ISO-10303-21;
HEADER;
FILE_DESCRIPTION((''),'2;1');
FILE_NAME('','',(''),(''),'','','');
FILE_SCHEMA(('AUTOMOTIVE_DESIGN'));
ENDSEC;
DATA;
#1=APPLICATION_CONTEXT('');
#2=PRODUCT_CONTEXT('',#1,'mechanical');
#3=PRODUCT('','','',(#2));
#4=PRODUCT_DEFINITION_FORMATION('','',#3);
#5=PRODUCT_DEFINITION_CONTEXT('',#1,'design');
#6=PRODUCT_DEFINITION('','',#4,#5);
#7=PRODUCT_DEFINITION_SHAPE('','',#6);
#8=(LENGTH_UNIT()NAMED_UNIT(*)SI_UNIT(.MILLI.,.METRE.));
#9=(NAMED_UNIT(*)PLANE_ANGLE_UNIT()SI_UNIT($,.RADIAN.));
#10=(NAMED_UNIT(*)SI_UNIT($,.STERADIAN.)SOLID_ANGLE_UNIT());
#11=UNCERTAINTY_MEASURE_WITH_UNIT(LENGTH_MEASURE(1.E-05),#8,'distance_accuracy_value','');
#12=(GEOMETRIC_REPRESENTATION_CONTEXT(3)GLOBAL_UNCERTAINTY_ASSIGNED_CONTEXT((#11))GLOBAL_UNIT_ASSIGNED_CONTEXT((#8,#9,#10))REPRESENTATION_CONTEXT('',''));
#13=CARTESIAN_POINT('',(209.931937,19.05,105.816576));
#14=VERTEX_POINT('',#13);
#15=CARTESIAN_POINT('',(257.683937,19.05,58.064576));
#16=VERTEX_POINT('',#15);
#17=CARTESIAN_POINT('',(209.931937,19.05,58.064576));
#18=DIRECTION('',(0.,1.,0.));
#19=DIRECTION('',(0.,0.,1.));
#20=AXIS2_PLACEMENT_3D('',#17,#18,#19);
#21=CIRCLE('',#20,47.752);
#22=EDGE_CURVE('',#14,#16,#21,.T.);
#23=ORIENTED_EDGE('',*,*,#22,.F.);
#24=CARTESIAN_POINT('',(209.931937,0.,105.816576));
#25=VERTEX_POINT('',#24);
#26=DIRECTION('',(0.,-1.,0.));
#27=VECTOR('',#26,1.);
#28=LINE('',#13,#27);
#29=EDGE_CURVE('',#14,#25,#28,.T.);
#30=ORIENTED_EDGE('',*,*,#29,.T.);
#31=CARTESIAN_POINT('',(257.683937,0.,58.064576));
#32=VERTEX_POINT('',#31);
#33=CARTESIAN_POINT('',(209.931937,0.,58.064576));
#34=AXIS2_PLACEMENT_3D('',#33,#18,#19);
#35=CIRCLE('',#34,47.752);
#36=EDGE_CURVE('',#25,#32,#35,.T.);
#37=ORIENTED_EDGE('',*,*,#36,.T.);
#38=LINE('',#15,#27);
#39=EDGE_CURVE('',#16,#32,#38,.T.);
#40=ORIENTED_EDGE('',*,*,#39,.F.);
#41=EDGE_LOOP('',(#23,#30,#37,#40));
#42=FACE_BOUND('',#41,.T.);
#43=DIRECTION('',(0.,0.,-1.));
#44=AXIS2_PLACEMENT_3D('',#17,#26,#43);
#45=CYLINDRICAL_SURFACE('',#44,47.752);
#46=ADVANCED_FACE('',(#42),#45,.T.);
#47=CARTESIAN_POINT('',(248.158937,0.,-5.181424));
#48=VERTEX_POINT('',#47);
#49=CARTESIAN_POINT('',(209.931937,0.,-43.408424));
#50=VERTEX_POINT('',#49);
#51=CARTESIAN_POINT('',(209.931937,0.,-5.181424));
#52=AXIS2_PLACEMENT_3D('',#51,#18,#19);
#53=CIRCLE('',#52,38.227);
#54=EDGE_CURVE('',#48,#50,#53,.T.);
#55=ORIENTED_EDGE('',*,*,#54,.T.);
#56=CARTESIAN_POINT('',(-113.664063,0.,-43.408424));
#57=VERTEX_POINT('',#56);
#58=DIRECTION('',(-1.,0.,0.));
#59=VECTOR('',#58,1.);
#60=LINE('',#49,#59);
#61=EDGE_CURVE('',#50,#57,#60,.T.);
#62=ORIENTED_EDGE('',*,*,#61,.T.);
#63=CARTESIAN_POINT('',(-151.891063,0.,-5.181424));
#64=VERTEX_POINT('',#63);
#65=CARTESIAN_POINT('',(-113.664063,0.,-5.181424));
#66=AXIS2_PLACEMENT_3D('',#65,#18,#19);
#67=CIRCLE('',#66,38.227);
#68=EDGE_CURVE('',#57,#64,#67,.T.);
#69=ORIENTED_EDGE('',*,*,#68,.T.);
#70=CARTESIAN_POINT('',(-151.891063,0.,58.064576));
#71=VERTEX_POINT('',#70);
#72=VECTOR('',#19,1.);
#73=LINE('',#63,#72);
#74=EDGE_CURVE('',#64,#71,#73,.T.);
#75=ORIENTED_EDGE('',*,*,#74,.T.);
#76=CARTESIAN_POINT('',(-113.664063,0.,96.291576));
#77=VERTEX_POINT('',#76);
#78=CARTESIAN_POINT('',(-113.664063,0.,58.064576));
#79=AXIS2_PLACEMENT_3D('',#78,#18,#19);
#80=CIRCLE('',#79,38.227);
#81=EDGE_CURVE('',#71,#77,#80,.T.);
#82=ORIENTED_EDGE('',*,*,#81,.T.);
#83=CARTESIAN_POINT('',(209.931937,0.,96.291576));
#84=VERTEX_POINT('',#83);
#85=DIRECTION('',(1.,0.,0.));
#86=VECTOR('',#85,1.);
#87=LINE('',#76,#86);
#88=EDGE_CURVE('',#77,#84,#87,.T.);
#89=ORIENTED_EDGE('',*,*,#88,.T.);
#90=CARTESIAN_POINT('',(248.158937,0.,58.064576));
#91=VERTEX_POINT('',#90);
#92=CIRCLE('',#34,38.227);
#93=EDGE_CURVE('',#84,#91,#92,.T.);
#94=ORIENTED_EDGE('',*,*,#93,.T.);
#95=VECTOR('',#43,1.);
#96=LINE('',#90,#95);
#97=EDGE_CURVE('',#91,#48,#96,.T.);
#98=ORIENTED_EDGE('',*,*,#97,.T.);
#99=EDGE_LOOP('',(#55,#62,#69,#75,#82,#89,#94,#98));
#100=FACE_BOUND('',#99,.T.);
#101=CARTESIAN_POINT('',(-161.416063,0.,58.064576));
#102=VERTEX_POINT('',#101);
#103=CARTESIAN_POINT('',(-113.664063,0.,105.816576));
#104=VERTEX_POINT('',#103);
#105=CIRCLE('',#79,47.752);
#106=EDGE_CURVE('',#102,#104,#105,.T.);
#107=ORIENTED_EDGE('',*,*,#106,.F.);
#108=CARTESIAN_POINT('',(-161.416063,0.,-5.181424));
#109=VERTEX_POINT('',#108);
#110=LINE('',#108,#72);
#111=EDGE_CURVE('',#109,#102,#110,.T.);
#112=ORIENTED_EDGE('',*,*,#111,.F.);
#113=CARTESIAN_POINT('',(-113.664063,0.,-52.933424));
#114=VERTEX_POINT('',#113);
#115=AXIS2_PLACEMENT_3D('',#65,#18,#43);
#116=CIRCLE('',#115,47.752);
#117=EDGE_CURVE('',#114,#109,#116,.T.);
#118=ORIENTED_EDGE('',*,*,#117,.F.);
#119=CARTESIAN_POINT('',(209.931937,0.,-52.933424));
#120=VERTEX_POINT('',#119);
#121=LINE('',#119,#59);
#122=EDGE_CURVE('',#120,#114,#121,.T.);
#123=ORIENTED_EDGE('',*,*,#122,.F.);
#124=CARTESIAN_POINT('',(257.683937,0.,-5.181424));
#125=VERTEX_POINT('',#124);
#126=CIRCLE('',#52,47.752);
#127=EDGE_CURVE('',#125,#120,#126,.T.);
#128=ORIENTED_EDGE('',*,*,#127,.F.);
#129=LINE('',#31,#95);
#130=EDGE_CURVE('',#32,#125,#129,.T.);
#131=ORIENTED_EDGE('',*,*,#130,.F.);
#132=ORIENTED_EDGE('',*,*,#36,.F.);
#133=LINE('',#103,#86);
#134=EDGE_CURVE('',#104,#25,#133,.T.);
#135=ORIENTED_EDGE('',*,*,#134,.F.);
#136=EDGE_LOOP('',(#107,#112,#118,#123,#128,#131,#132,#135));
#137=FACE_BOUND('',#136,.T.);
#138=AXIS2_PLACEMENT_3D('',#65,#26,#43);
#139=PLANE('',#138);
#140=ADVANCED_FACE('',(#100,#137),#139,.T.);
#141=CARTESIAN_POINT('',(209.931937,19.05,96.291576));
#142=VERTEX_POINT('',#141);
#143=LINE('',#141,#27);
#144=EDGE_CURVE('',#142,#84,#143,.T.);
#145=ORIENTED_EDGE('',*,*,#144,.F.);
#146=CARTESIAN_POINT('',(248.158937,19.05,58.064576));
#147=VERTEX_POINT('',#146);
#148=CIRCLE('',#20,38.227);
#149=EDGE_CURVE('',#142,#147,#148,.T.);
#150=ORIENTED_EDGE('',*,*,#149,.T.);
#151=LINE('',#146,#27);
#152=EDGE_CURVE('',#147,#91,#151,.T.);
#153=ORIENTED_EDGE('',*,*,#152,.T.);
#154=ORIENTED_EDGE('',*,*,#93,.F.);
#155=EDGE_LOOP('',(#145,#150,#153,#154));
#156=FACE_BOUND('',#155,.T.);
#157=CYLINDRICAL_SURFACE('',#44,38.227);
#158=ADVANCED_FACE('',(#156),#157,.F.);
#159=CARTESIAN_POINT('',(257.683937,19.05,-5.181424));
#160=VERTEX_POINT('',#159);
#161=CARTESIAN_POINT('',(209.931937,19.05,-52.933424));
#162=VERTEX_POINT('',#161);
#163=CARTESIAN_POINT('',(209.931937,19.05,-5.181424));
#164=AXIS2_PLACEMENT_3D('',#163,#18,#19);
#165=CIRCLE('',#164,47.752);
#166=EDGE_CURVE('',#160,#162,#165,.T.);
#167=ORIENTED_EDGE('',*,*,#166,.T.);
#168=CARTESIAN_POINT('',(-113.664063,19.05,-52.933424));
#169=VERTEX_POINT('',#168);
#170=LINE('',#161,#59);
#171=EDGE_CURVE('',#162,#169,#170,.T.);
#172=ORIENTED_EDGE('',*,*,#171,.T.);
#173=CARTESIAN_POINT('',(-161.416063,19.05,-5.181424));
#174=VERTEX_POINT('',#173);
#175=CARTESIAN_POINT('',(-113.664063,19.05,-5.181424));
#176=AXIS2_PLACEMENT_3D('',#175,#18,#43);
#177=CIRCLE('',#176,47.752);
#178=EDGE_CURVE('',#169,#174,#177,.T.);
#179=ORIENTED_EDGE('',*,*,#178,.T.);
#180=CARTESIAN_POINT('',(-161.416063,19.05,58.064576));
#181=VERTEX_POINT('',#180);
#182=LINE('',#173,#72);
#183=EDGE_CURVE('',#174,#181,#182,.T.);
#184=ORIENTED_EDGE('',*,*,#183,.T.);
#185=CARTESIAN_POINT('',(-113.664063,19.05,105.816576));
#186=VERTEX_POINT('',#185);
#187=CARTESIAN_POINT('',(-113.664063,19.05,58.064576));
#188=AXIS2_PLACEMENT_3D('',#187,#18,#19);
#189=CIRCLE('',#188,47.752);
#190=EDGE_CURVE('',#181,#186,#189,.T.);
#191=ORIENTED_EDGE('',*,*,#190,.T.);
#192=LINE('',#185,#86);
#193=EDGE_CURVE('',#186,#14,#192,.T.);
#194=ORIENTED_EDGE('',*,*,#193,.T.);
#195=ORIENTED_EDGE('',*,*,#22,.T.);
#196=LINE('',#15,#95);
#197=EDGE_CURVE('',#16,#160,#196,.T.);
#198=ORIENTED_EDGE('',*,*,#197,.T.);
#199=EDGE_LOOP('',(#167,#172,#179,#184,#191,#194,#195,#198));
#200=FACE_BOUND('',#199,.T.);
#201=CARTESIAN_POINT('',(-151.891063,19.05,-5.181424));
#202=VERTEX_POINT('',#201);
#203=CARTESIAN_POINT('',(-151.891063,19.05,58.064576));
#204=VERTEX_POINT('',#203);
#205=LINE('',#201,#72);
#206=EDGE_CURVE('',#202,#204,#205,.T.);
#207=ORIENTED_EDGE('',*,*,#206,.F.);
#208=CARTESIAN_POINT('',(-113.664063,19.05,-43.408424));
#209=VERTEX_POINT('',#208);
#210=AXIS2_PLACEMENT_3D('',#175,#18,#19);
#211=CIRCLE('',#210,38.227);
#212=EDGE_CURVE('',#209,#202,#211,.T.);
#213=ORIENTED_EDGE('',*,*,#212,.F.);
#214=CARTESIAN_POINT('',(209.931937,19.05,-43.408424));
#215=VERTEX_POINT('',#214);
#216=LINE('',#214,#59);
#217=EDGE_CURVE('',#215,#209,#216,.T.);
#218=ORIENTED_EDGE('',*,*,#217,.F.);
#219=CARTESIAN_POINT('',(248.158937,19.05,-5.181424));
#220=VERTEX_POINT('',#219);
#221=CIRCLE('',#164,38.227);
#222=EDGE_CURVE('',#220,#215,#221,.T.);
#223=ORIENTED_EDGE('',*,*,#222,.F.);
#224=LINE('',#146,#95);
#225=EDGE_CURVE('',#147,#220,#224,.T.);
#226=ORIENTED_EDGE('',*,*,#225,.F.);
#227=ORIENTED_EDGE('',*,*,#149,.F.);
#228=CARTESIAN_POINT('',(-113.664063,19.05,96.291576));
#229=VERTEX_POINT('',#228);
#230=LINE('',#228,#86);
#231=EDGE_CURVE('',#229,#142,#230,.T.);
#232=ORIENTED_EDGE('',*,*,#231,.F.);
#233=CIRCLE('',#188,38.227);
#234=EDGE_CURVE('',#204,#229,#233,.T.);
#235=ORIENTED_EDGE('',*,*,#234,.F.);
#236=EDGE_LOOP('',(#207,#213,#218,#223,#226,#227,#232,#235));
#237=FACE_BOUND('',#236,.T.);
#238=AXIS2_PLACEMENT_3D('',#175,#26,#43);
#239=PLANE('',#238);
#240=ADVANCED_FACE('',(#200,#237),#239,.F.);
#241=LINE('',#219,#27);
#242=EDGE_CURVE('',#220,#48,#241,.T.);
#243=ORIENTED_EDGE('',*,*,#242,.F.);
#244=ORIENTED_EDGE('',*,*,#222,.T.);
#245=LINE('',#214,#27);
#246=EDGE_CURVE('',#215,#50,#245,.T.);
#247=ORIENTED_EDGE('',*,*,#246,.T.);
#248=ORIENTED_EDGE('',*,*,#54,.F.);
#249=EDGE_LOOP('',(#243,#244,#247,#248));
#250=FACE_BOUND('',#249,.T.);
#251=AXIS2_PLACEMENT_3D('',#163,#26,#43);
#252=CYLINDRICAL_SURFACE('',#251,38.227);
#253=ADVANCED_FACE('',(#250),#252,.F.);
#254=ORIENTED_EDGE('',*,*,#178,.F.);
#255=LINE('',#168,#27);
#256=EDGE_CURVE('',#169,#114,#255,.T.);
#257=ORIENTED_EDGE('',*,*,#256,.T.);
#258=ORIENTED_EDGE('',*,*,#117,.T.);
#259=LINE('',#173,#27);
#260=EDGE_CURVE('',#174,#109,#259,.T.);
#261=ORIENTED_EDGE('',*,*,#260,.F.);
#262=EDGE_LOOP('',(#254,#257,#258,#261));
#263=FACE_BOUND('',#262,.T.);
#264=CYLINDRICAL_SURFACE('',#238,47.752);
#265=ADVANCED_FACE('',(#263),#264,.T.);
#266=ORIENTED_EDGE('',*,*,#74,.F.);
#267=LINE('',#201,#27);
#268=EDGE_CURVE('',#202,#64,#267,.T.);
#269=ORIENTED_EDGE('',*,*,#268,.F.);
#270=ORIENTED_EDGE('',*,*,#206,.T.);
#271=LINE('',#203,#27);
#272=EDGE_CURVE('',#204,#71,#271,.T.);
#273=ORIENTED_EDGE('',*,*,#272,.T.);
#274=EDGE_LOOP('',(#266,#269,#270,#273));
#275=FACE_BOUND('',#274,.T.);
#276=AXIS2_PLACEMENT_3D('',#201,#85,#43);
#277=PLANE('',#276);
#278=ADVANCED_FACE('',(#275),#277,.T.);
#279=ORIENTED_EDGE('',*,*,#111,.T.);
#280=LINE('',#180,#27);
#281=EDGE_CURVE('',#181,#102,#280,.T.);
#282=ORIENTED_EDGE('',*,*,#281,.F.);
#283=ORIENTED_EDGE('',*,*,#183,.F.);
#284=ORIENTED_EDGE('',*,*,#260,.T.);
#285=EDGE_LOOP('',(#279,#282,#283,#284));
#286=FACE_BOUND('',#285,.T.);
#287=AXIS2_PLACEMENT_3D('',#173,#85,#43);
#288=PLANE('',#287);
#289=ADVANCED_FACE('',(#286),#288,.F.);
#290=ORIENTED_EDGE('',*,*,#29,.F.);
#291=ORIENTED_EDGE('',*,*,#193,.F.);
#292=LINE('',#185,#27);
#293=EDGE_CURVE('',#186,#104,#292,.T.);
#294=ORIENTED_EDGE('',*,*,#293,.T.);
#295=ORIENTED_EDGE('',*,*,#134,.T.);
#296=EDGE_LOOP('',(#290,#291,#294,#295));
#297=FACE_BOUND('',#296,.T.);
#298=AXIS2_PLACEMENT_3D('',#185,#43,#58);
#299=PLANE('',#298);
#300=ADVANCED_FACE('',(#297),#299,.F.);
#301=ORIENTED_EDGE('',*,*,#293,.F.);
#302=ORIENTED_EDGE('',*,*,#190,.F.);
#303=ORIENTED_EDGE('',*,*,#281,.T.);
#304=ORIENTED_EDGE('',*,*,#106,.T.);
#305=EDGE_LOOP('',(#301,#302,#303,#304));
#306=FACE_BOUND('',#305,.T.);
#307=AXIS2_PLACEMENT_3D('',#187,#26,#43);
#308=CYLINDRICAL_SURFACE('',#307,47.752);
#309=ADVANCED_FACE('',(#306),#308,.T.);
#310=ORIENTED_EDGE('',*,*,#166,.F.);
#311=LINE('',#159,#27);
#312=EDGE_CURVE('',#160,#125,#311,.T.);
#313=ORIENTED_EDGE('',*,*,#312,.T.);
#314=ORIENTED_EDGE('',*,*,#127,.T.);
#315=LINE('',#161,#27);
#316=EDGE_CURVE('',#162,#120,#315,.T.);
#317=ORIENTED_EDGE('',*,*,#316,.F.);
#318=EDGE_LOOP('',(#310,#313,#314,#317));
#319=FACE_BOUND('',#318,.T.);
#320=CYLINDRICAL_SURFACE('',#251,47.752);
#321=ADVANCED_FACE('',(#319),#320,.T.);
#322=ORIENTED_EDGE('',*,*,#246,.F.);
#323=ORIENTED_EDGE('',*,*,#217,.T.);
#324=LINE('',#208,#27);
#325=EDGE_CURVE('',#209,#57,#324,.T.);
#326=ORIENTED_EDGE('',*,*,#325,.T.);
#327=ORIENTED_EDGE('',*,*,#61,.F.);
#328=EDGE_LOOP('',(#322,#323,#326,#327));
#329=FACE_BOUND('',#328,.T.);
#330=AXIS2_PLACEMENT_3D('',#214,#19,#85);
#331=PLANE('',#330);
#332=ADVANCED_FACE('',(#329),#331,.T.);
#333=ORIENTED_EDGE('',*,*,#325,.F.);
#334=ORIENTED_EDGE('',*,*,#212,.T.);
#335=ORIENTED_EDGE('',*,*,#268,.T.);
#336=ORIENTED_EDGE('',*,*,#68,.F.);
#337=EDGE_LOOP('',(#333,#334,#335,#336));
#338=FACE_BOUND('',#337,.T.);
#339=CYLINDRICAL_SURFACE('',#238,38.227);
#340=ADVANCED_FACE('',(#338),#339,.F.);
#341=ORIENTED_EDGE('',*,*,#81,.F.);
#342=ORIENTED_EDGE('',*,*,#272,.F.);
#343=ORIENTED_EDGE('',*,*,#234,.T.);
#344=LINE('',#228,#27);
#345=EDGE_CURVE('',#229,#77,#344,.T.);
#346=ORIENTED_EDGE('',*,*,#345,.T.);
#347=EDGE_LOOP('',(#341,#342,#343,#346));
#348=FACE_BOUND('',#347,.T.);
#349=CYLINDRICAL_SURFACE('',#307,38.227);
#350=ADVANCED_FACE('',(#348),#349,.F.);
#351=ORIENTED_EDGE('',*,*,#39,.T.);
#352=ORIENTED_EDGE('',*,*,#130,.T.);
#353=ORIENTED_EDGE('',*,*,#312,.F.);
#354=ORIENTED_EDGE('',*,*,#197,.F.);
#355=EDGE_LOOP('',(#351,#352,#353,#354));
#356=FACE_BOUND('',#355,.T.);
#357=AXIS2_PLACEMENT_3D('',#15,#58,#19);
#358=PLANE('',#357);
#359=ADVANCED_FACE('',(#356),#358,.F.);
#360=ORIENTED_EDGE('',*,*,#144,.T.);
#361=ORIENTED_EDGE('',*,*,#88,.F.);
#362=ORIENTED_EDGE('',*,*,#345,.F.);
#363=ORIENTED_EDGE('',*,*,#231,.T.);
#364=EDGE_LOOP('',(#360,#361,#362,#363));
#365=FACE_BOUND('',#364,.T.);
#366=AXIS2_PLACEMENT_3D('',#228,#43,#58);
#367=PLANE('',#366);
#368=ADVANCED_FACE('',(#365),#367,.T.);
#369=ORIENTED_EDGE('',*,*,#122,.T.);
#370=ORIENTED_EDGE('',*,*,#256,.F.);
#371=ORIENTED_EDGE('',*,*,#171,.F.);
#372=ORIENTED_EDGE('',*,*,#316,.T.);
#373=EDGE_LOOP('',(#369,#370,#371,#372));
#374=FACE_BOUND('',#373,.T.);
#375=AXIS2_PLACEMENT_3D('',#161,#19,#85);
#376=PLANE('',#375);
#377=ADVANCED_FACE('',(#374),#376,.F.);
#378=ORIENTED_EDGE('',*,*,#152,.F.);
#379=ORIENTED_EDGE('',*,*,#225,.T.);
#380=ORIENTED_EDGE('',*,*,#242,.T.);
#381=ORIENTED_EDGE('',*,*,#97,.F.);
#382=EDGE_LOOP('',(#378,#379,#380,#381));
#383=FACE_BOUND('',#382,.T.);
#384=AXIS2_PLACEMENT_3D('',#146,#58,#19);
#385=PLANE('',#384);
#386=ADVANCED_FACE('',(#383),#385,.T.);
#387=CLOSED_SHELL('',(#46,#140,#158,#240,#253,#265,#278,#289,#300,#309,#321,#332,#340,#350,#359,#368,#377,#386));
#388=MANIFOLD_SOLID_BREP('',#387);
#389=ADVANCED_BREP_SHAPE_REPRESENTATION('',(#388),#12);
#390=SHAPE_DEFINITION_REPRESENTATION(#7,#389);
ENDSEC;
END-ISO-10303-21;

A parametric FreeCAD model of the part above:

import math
import FreeCAD as App
import Part
import Sketcher

V = App.Vector
Q = App.Units.Quantity

doc = App.newDocument("Part")
params = doc.addObject("Spreadsheet::Sheet", "Params")
for row, (alias, value) in enumerate([
    ("sketch1_radius", "1.88 in"),
    ("sketch1_radius2", "1.505 in"),
    ("sketch1_width", "12.74 in"),
    ("sketch1_height", "2.49 in"),
    ("pad1_length", "0.75 in"),
], start=1):
    params.set(f"A{row}", alias)
    params.set(f"B{row}", "=" + value)
    params.setAlias(f"B{row}", alias)

body = doc.addObject("PartDesign::Body", "Body")

# Sketch on XZ plane
sketch1 = body.newObject("Sketcher::SketchObject", "Sketch")
sketch1.AttachmentSupport = (doc.getObject("XZ_Plane"), [""])
sketch1.MapMode = "FlatFace"
sketch1.addGeometry([
    Part.LineSegment(V(-161, -5, 0), V(-161, 58, 0)),  # 0
    Part.ArcOfCircle(Part.Circle(V(-114, 58, 0), V(0, 0, 1), 48), math.radians(90), math.radians(180)),  # 1
    Part.LineSegment(V(-114, 106, 0), V(210, 106, 0)),  # 2
    Part.ArcOfCircle(Part.Circle(V(210, 58, 0), V(0, 0, 1), 48), math.radians(0), math.radians(90)),  # 3
    Part.LineSegment(V(258, 58, 0), V(258, -5, 0)),  # 4
    Part.ArcOfCircle(Part.Circle(V(210, -5, 0), V(0, 0, 1), 48), math.radians(-90), math.radians(0)),  # 5
    Part.LineSegment(V(210, -53, 0), V(-114, -53, 0)),  # 6
    Part.ArcOfCircle(Part.Circle(V(-114, -5, 0), V(0, 0, 1), 48), math.radians(180), math.radians(270)),  # 7
    Part.LineSegment(V(-152, 58, 0), V(-152, -5, 0)),  # 8
    Part.ArcOfCircle(Part.Circle(V(-114, -5, 0), V(0, 0, 1), 38), math.radians(180), math.radians(270)),  # 9
    Part.LineSegment(V(-114, -43, 0), V(210, -43, 0)),  # 10
    Part.ArcOfCircle(Part.Circle(V(210, -5, 0), V(0, 0, 1), 38), math.radians(-90), math.radians(0)),  # 11
    Part.LineSegment(V(248, -5, 0), V(248, 58, 0)),  # 12
    Part.ArcOfCircle(Part.Circle(V(210, 58, 0), V(0, 0, 1), 38), math.radians(0), math.radians(90)),  # 13
    Part.LineSegment(V(210, 96, 0), V(-114, 96, 0)),  # 14
    Part.ArcOfCircle(Part.Circle(V(-114, 58, 0), V(0, 0, 1), 38), math.radians(90), math.radians(180)),  # 15
], False)
sketch1.addConstraint([
    Sketcher.Constraint("Tangent", 0, 2, 1, 2),
    Sketcher.Constraint("Tangent", 1, 1, 2, 1),
    Sketcher.Constraint("Tangent", 2, 2, 3, 2),
    Sketcher.Constraint("Tangent", 3, 1, 4, 1),
    Sketcher.Constraint("Tangent", 4, 2, 5, 2),
    Sketcher.Constraint("Tangent", 5, 1, 6, 1),
    Sketcher.Constraint("Tangent", 6, 2, 7, 2),
    Sketcher.Constraint("Tangent", 7, 1, 0, 1),
    Sketcher.Constraint("Tangent", 8, 2, 9, 1),
    Sketcher.Constraint("Tangent", 9, 2, 10, 1),
    Sketcher.Constraint("Tangent", 10, 2, 11, 1),
    Sketcher.Constraint("Tangent", 11, 2, 12, 1),
    Sketcher.Constraint("Tangent", 12, 2, 13, 1),
    Sketcher.Constraint("Tangent", 13, 2, 14, 1),
    Sketcher.Constraint("Tangent", 14, 2, 15, 1),
    Sketcher.Constraint("Tangent", 15, 2, 8, 1),
    Sketcher.Constraint("Vertical", 0),
    Sketcher.Constraint("Horizontal", 2),
    Sketcher.Constraint("Vertical", 4),
    Sketcher.Constraint("Horizontal", 6),
    Sketcher.Constraint("Vertical", 8),
    Sketcher.Constraint("Horizontal", 10),
    Sketcher.Constraint("Vertical", 12),
    Sketcher.Constraint("Horizontal", 14),
    Sketcher.Constraint("Coincident", 9, 3, 7, 3),
    Sketcher.Constraint("Coincident", 11, 3, 5, 3),
    Sketcher.Constraint("Coincident", 13, 3, 3, 3),
    Sketcher.Constraint("Equal", 1, 3),
    Sketcher.Constraint("Equal", 3, 5),
    Sketcher.Constraint("Equal", 5, 7),
    Sketcher.Constraint("Equal", 13, 15),
    Sketcher.Constraint("Radius", 1, Q("1.88 in")),
    Sketcher.Constraint("Radius", 9, Q("1.505 in")),
    Sketcher.Constraint("DistanceX", 2, 1, 2, 2, Q("12.74 in")),
    Sketcher.Constraint("DistanceY", 0, 1, 0, 2, Q("2.49 in")),
    Sketcher.Constraint("DistanceX", 1, 3, -1, 1, Q("113.664063 mm")),
    Sketcher.Constraint("DistanceY", -1, 1, 1, 3, Q("58.064576 mm")),
])
sketch1.setExpression("Constraints[31]", "Params.sketch1_radius")
sketch1.setExpression("Constraints[32]", "Params.sketch1_radius2")
sketch1.setExpression("Constraints[33]", "Params.sketch1_width")
sketch1.setExpression("Constraints[34]", "Params.sketch1_height")
pad1 = body.newObject("PartDesign::Pad", "Pad")
pad1.Profile = sketch1
pad1.setExpression("Length", "Params.pad1_length")
pad1.Reversed = True

doc.recompute()
